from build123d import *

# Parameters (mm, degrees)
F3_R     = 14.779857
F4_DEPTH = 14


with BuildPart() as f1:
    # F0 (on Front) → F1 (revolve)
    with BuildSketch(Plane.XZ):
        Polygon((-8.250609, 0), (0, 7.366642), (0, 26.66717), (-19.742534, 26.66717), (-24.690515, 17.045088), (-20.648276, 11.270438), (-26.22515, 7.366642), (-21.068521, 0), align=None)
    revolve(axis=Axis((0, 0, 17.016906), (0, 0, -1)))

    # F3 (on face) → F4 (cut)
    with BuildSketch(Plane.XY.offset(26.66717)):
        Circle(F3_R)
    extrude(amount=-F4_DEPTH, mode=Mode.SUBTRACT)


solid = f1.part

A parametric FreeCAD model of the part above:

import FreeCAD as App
import Part
import Sketcher
from FreeCAD import Vector
Q = App.Units.Quantity

doc = App.newDocument("Part")
body = doc.addObject("PartDesign::Body", "Body")

# Sketch on XZ plane
sketch1 = body.newObject("Sketcher::SketchObject", "Sketch")
sketch1.AttachmentSupport = (doc.getObject("XZ_Plane"), [""])
sketch1.MapMode = "FlatFace"
sketch1.addGeometry(Part.LineSegment(Vector(-8, 0, 0), Vector(0, 7, 0)), False)
sketch1.addGeometry(Part.LineSegment(Vector(0, 7, 0), Vector(0, 27, 0)), False)
sketch1.addGeometry(Part.LineSegment(Vector(0, 27, 0), Vector(-20, 27, 0)), False)
sketch1.addGeometry(Part.LineSegment(Vector(-20, 27, 0), Vector(-25, 17, 0)), False)
sketch1.addGeometry(Part.LineSegment(Vector(-25, 17, 0), Vector(-21, 11, 0)), False)
sketch1.addGeometry(Part.LineSegment(Vector(-21, 11, 0), Vector(-26, 7, 0)), False)
sketch1.addGeometry(Part.LineSegment(Vector(-26, 7, 0), Vector(-21, 0, 0)), False)
sketch1.addGeometry(Part.LineSegment(Vector(-21, 0, 0), Vector(-8, 0, 0)), False)
sketch1.addConstraint(Sketcher.Constraint("Coincident", 0, 2, 1, 1))
sketch1.addConstraint(Sketcher.Constraint("Coincident", 1, 2, 2, 1))
sketch1.addConstraint(Sketcher.Constraint("Coincident", 2, 2, 3, 1))
sketch1.addConstraint(Sketcher.Constraint("Coincident", 3, 2, 4, 1))
sketch1.addConstraint(Sketcher.Constraint("Coincident", 4, 2, 5, 1))
sketch1.addConstraint(Sketcher.Constraint("Coincident", 5, 2, 6, 1))
sketch1.addConstraint(Sketcher.Constraint("Coincident", 6, 2, 7, 1))
sketch1.addConstraint(Sketcher.Constraint("Coincident", 7, 2, 0, 1))
sketch1.addConstraint(Sketcher.Constraint("Vertical", 1))
sketch1.addConstraint(Sketcher.Constraint("Horizontal", 2))
sketch1.addConstraint(Sketcher.Constraint("Horizontal", 7))
sketch1.addConstraint(Sketcher.Constraint("PointOnObject", 0, 2, -2))
sketch1.addConstraint(Sketcher.Constraint("PointOnObject", 6, 2, -1))
sketch1.addConstraint(Sketcher.Constraint("Perpendicular", 4, 5))
sketch1.addConstraint(Sketcher.Constraint("Perpendicular", 5, 6))
sketch1.addConstraint(Sketcher.Constraint("Horizontal", 0, 2, 5, 2))
sketch1.addConstraint(Sketcher.Constraint("DistanceY", 1, 1, 1, 2, Q("19.300528 mm")))
sketch1.addConstraint(Sketcher.Constraint("Distance", 0, Q("11.06074 mm")))
sketch1.addConstraint(Sketcher.Constraint("Distance", 3, Q("10.819749 mm")))
sketch1.addConstraint(Sketcher.Constraint("Distance", 4, Q("7.048849 mm")))
sketch1.addConstraint(Sketcher.Constraint("Distance", 6, Q("8.992121 mm")))
sketch1.addConstraint(Sketcher.Constraint("DistanceX", 2, 2, 2, 1, Q("19.742534 mm")))
sketch1.addConstraint(Sketcher.Constraint("DistanceX", 7, 1, 7, 2, Q("12.817912 mm")))
sketch1.addConstraint(Sketcher.Constraint("DistanceY", -1, 1, 0, 2, Q("7.366642 mm")))
revolution = body.newObject("PartDesign::Revolution", "Revolution")
revolution.Profile = sketch1
revolution.ReferenceAxis = (sketch1, ["V_Axis"])
revolution.Angle = 360

# Sketch on XY plane
sketch2 = body.newObject("Sketcher::SketchObject", "Sketch001")
sketch2.AttachmentSupport = (doc.getObject("XY_Plane"), [""])
sketch2.MapMode = "FlatFace"
sketch2.AttachmentOffset = App.Placement(Vector(0, 0, 26.66717), App.Rotation())
sketch2.addGeometry(Part.Circle(Vector(0, 0, 0), Vector(0, 0, 1), 15), False)
sketch2.addConstraint(Sketcher.Constraint("Coincident", 0, 3, -1, 1))
sketch2.addConstraint(Sketcher.Constraint("Diameter", 0, Q("29.559714 mm")))
pocket1 = body.newObject("PartDesign::Pocket", "Pocket")
pocket1.Profile = sketch2
pocket1.Length = 14

doc.recompute()
